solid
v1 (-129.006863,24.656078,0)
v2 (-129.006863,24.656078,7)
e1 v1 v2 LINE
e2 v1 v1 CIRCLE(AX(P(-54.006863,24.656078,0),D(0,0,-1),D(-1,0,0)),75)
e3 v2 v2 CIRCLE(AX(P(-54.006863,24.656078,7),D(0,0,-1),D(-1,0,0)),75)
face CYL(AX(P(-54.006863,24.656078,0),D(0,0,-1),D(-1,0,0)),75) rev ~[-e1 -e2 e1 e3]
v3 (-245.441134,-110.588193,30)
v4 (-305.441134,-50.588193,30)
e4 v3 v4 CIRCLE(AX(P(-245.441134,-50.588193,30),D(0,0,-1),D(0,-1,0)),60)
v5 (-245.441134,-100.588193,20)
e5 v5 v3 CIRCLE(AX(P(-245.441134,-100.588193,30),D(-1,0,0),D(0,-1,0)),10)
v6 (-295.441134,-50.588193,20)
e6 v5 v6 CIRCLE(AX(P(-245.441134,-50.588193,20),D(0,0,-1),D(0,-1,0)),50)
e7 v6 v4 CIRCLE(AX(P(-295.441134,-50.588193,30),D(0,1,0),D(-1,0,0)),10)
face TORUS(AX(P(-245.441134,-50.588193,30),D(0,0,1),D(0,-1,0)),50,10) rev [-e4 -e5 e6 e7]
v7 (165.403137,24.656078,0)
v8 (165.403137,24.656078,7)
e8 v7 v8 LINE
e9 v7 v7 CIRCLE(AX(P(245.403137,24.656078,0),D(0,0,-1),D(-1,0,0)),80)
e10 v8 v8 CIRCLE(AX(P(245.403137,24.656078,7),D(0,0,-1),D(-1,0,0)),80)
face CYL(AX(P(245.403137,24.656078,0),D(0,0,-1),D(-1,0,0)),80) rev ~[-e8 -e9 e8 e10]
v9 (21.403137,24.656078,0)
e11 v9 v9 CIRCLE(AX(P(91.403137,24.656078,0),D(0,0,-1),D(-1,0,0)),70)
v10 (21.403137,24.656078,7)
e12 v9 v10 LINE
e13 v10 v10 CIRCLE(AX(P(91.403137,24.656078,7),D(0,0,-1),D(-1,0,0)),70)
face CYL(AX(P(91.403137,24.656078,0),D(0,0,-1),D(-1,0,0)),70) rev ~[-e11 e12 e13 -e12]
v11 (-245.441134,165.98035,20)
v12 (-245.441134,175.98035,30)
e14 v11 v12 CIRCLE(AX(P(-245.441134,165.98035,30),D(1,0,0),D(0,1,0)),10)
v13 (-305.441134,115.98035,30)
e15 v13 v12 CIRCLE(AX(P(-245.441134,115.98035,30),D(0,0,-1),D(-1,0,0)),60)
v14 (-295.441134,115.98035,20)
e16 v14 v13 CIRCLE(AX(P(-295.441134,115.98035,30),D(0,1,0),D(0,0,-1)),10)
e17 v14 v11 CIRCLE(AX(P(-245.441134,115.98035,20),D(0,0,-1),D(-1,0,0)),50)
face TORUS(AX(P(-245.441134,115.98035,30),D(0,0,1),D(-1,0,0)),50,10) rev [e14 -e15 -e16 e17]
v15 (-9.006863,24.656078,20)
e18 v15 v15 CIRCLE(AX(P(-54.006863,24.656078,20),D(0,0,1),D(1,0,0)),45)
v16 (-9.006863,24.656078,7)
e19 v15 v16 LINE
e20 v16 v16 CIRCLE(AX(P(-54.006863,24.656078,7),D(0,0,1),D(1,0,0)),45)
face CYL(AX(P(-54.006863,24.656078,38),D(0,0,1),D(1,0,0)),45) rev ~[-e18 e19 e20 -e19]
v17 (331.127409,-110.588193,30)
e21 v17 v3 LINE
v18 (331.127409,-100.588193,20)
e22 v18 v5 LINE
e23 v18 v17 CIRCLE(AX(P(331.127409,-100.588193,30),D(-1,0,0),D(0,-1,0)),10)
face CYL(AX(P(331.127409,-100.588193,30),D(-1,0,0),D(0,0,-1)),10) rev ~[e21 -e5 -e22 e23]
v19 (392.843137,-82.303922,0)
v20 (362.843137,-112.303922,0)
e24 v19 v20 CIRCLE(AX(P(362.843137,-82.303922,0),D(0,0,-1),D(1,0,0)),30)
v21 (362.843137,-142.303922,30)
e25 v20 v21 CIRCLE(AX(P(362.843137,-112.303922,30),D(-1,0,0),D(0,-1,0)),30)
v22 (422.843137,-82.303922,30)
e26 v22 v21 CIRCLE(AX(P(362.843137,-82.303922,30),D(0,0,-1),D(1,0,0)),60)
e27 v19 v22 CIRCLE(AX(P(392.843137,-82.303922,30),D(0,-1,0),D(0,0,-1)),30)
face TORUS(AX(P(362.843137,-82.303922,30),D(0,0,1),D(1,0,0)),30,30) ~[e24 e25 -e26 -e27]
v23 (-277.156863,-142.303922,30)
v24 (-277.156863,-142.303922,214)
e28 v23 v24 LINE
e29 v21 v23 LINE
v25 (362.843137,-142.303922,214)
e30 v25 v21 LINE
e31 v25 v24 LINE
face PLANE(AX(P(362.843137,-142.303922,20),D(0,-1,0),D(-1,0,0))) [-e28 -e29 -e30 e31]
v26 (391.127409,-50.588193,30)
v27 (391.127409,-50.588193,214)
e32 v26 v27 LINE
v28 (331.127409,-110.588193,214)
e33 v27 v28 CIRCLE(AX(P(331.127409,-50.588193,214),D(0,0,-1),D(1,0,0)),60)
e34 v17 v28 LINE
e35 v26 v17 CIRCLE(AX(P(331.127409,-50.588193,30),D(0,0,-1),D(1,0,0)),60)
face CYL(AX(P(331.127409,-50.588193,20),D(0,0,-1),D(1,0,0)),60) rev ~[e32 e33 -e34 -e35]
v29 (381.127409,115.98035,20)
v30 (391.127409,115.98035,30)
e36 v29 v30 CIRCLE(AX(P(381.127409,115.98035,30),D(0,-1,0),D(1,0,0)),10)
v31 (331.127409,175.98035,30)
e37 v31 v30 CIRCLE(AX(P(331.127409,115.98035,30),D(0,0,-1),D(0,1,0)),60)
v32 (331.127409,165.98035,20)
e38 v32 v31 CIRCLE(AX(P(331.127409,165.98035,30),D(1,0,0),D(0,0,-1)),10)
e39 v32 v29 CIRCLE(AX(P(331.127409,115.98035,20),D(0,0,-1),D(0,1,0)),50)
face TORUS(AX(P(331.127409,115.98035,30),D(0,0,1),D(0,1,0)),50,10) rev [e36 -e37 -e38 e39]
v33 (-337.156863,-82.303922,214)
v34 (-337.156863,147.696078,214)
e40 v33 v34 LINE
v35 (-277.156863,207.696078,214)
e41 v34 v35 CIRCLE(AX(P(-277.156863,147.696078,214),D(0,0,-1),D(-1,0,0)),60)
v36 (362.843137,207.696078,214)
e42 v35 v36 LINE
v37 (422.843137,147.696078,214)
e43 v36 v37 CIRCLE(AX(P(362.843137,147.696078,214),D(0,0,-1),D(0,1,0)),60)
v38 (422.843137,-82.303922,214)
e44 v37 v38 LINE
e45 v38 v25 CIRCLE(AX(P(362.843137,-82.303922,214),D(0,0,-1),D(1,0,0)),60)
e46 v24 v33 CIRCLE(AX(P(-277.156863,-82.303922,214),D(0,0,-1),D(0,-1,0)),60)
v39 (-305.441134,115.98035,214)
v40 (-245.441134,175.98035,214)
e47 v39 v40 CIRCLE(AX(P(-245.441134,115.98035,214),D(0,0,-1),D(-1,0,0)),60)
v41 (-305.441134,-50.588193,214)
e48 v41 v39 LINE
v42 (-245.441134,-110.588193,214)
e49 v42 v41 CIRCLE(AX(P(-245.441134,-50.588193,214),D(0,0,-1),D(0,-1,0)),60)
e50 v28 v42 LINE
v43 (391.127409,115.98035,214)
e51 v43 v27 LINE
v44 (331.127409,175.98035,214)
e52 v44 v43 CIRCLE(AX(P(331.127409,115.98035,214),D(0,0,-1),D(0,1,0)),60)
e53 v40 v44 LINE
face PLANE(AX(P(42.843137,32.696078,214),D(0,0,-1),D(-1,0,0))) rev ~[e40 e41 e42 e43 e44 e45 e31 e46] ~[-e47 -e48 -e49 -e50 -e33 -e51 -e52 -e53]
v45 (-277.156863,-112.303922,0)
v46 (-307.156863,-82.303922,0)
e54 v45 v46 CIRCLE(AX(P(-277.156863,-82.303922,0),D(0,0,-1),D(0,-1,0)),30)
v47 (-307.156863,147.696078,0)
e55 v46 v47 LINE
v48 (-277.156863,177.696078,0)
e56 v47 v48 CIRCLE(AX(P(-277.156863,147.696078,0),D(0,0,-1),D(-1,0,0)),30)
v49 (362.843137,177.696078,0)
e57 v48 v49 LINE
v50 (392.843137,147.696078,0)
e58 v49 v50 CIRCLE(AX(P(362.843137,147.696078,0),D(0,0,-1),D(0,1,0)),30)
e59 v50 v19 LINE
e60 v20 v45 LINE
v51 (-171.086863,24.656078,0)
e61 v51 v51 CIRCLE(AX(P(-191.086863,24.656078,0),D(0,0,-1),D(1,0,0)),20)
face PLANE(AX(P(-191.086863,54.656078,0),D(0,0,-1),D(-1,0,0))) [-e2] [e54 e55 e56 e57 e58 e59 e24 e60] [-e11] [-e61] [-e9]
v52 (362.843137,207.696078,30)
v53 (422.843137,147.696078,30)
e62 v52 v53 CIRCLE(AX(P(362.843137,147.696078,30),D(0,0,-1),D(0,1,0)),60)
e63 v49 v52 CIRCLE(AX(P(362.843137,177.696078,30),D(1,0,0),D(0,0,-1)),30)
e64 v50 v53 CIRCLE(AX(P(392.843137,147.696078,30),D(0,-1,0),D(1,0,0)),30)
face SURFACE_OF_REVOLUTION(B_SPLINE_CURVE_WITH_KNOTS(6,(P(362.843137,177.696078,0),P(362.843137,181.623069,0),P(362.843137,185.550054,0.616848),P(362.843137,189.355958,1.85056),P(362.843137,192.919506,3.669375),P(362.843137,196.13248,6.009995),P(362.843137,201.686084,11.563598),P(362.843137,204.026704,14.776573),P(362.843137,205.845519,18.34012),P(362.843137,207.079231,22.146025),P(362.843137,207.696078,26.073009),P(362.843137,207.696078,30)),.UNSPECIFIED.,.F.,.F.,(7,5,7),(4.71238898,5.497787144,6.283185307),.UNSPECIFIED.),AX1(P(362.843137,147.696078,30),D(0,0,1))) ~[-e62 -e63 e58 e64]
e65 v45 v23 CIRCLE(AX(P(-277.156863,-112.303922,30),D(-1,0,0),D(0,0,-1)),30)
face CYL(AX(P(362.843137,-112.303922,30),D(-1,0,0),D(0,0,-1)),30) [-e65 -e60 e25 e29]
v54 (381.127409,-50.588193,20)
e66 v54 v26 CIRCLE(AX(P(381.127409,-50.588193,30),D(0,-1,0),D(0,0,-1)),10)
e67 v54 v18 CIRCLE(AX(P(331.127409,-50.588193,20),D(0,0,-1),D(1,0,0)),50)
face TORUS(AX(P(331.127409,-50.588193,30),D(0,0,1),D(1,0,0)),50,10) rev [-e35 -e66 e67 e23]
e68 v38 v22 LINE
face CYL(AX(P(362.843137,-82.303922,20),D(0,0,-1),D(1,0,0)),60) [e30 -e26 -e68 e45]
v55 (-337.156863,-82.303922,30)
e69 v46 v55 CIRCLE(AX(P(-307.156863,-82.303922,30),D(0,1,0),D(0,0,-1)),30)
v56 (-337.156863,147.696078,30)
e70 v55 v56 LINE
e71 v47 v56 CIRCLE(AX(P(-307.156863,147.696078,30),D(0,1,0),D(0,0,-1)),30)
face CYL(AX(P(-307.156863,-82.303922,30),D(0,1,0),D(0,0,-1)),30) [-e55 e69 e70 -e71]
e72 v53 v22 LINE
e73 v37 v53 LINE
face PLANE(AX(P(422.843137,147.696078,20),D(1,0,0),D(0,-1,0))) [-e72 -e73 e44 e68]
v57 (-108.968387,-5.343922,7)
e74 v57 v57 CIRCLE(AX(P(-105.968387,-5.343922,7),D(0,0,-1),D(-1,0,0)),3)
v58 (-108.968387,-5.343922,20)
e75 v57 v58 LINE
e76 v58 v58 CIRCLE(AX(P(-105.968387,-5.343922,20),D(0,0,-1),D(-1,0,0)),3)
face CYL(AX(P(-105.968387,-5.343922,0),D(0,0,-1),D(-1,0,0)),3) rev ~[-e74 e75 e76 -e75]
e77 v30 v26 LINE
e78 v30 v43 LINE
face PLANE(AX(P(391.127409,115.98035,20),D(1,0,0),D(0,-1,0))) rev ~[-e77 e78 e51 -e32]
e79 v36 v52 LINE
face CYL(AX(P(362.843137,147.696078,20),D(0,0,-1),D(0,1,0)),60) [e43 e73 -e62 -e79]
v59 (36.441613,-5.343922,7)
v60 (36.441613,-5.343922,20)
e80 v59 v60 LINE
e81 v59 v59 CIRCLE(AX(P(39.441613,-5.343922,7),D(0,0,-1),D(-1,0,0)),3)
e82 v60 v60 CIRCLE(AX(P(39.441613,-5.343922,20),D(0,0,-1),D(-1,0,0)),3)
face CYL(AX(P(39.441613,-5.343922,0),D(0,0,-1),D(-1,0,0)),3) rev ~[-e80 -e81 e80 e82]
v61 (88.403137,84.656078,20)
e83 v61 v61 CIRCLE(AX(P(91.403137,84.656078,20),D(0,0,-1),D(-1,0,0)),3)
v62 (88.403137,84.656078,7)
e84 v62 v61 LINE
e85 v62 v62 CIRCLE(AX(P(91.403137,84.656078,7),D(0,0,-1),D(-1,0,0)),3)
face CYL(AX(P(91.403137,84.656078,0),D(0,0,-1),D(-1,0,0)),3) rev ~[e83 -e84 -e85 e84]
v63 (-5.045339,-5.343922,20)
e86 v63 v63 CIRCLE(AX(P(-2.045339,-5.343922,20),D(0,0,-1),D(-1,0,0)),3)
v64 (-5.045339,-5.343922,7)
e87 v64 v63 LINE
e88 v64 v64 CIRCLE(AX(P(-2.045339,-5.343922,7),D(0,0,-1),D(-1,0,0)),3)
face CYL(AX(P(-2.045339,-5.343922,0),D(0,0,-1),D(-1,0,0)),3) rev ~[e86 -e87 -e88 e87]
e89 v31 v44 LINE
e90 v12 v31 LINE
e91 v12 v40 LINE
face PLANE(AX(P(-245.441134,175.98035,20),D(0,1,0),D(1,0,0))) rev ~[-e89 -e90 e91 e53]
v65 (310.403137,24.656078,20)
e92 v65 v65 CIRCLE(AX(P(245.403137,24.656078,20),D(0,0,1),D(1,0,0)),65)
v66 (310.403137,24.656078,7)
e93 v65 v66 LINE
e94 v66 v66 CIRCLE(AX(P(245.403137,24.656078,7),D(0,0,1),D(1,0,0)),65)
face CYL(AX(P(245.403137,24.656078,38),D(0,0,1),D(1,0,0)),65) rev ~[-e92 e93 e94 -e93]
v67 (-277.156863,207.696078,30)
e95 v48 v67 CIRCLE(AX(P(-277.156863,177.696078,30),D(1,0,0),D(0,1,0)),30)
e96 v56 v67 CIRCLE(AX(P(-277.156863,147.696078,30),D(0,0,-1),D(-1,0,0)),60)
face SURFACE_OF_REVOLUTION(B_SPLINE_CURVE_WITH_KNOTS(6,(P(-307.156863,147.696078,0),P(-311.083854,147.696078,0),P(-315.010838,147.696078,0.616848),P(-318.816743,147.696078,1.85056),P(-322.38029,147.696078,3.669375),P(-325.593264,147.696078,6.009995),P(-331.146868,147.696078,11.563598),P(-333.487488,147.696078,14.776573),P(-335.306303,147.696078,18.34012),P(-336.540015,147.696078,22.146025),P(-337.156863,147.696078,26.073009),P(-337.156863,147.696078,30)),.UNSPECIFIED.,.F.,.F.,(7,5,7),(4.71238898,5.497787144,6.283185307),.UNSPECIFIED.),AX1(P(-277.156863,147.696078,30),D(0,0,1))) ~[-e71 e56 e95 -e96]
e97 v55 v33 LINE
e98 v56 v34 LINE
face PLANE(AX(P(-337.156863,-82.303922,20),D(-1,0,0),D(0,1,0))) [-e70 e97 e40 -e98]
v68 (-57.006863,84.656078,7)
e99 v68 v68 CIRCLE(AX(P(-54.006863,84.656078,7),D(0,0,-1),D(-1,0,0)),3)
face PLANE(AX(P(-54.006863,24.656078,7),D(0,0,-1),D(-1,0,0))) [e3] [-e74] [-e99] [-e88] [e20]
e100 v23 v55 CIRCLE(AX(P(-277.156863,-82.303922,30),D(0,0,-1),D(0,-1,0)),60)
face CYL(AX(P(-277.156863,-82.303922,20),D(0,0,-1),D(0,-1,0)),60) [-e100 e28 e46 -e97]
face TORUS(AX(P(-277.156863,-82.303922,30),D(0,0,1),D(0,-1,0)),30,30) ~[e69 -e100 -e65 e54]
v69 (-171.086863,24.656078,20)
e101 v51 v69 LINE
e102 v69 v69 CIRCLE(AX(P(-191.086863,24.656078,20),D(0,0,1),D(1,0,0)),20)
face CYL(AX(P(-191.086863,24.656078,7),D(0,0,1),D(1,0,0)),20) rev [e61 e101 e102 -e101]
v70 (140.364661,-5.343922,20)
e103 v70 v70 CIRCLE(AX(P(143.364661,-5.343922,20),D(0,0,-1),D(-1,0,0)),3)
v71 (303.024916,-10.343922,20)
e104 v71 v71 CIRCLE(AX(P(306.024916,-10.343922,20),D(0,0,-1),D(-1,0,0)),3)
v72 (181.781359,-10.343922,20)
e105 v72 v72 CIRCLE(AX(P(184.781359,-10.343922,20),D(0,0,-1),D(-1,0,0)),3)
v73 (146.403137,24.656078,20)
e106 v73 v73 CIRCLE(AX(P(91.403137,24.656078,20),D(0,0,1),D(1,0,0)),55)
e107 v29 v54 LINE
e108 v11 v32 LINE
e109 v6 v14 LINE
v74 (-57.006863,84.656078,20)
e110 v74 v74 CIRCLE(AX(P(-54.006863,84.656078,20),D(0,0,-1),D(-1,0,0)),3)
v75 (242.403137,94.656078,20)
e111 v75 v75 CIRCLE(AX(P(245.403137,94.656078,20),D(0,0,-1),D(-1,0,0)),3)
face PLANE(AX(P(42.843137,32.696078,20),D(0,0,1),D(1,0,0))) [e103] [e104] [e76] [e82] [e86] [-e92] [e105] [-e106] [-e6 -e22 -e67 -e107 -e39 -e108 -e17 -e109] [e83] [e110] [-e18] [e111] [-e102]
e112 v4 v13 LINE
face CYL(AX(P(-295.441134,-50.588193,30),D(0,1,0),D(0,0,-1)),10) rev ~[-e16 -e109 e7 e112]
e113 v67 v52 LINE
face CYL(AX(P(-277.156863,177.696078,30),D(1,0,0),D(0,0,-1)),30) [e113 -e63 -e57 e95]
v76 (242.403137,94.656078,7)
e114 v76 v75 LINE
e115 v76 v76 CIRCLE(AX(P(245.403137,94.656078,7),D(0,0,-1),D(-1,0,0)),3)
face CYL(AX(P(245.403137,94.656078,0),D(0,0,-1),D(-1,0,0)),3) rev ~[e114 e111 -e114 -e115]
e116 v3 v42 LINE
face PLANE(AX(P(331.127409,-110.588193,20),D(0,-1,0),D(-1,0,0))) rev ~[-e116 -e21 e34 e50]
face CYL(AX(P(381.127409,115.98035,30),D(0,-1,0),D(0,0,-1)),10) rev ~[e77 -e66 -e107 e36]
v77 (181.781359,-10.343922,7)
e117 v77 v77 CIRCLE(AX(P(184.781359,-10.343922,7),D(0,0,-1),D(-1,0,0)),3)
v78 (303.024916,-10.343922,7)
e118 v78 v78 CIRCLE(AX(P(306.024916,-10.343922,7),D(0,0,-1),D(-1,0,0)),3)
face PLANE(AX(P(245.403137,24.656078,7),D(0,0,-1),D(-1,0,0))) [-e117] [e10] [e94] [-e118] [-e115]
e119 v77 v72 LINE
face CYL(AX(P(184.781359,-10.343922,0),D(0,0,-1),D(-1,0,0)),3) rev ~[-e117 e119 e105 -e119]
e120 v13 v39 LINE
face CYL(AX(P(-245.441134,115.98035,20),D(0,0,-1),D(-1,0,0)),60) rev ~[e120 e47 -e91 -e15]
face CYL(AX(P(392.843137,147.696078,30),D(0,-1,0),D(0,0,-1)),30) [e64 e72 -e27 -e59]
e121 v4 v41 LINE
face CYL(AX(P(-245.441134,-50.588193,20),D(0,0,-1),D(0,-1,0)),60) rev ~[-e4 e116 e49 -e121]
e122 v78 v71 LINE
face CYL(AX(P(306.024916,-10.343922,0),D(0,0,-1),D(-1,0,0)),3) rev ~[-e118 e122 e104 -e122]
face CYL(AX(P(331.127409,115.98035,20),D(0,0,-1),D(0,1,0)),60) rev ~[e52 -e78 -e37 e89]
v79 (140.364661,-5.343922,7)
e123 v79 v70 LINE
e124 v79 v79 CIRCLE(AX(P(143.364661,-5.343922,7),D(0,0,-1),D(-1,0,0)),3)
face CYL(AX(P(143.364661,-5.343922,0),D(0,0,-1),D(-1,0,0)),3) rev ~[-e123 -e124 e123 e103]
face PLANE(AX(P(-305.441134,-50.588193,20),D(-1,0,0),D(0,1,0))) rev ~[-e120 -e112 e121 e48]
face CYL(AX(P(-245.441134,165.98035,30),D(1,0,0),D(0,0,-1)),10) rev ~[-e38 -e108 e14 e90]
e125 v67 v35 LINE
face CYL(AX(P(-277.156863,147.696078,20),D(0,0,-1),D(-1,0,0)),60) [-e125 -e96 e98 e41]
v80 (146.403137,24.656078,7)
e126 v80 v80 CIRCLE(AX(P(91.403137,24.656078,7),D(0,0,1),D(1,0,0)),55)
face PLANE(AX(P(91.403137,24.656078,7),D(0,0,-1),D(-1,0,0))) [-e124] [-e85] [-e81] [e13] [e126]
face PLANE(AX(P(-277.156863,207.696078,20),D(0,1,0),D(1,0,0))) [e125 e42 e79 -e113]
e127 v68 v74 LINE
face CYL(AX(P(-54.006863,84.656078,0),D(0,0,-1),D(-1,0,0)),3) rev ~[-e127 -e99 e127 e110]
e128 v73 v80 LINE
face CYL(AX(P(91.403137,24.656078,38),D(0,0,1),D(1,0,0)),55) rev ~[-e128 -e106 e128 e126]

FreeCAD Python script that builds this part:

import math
import FreeCAD as App
import Part
import Sketcher
from FreeCAD import Vector
Q = App.Units.Quantity


def edges_at(feature, points):
    """Names of the edges that pass closest to the given points."""
    edges = feature.Shape.Edges
    near = lambda p: min(range(len(edges)), key=lambda i: edges[i].distToShape(Part.Vertex(*p))[0])
    return sorted({f"Edge{near(p) + 1}" for p in points})


def add_polygon(sketch, points):
    """Adds a closed chain of lines whose ends are joined by coincident constraints."""
    first, n = sketch.GeometryCount, len(points)
    for a, b in zip(points, points[1:] + points[:1]):
        sketch.addGeometry(Part.LineSegment(App.Vector(*a, 0), App.Vector(*b, 0)), False)
    for i in range(n):
        sketch.addConstraint(Sketcher.Constraint("Coincident", first + i, 2, first + (i + 1) % n, 1))

doc = App.newDocument("Part")
body = doc.addObject("PartDesign::Body", "Body")

# Sketch on XY plane
sketch1 = doc.addObject("Sketcher::SketchObject", "Sketch")
body.addObject(sketch1)
sketch1.AttachmentSupport = (doc.XY_Plane, [""])
sketch1.MapMode = "FlatFace"
add_polygon(sketch1, [(-337, 208), (-337, -142), (423, -142), (423, 208)])  # lines 0-3
sketch1.addConstraint([
    Sketcher.Constraint("Vertical", 0),
    Sketcher.Constraint("Horizontal", 1),
    Sketcher.Constraint("Vertical", 2),
    Sketcher.Constraint("Horizontal", 3),
    Sketcher.Constraint("DistanceX", 1, 1, 1, 2, Q("760 mm")),
    Sketcher.Constraint("DistanceY", 0, 2, 0, 1, Q("350 mm")),
    Sketcher.Constraint("DistanceY", 0, 2, -1, 1, Q("142.303922 mm")),
    Sketcher.Constraint("DistanceX", 0, 2, -1, 1, Q("337.156863 mm")),
])
pad1 = doc.addObject("PartDesign::Pad", "Pad")
body.addObject(pad1)
pad1.Profile = sketch1
pad1.Length = 38

# Sketch on XY plane
sketch2 = doc.addObject("Sketcher::SketchObject", "Sketch001")
body.addObject(sketch2)
sketch2.AttachmentSupport = (doc.XY_Plane, [""])
sketch2.MapMode = "FlatFace"
sketch2.AttachmentOffset = App.Placement(Vector(0, 0, 38), App.Rotation())
sketch2.addGeometry([
    Part.Circle(Vector(245, 25, 0), Vector(0, 0, 1), 65),
    Part.Circle(Vector(91, 25, 0), Vector(0, 0, 1), 55),
    Part.Circle(Vector(-54, 25, 0), Vector(0, 0, 1), 45),
], False)
sketch2.addConstraint([
    Sketcher.Constraint("Horizontal", 0, 3, 1, 3),
    Sketcher.Constraint("Horizontal", 1, 3, 2, 3),
    Sketcher.Constraint("Diameter", 0, Q("130 mm")),
    Sketcher.Constraint("Diameter", 1, Q("110 mm")),
    Sketcher.Constraint("Diameter", 2, Q("90 mm")),
    Sketcher.Constraint("DistanceX", 1, 3, 0, 3, Q("154 mm")),
    Sketcher.Constraint("DistanceX", 2, 3, 1, 3, Q("145.41 mm")),
    Sketcher.Constraint("DistanceY", -1, 1, 0, 3, Q("24.656078 mm")),
    Sketcher.Constraint("DistanceX", -1, 1, 0, 3, Q("245.403137 mm")),
])
pocket1 = doc.addObject("PartDesign::Pocket", "Pocket")
body.addObject(pocket1)
pocket1.Profile = sketch2
pocket1.Type = "ThroughAll"

# Sketch on XY plane
sketch3 = doc.addObject("Sketcher::SketchObject", "Sketch002")
body.addObject(sketch3)
sketch3.AttachmentSupport = (doc.XY_Plane, [""])
sketch3.MapMode = "FlatFace"
sketch3.AttachmentOffset = App.Placement(Vector(0, 0, 38), App.Rotation())
sketch3.addGeometry(Part.Circle(Vector(-191, 25, 0), Vector(0, 0, 1), 20), False)
sketch3.addConstraint([
    Sketcher.Constraint("Diameter", 0, Q("40 mm")),
    Sketcher.Constraint("DistanceY", -1, 1, 0, 3, Q("24.656078 mm")),
    Sketcher.Constraint("DistanceX", 0, 3, -1, 1, Q("191.086863 mm")),
])
pocket2 = doc.addObject("PartDesign::Pocket", "Pocket001")
body.addObject(pocket2)
pocket2.Profile = sketch3
pocket2.Type = "ThroughAll"

# Sketch on XY plane
sketch4 = doc.addObject("Sketcher::SketchObject", "Sketch003")
body.addObject(sketch4)
sketch4.AttachmentSupport = (doc.XY_Plane, [""])
sketch4.MapMode = "FlatFace"
sketch4.addGeometry([
    Part.Circle(Vector(-54, 24.7, 0), Vector(0, 0, 1), 75),  # 0
    Part.Circle(Vector(-2, -5.3, 0), Vector(0, 0, 1), 3),  # 1
    Part.Circle(Vector(-106, -5.3, 0), Vector(0, 0, 1), 3),  # 2
    Part.Circle(Vector(-54, 84.7, 0), Vector(0, 0, 1), 3),  # 3
    Part.Circle(Vector(91.4, 24.7, 0), Vector(0, 0, 1), 70),  # 4
    Part.Circle(Vector(143.4, -5.3, 0), Vector(0, 0, 1), 3),  # 5
    Part.Circle(Vector(39.4, -5.3, 0), Vector(0, 0, 1), 3),  # 6
    Part.Circle(Vector(91.4, 84.7, 0), Vector(0, 0, 1), 3),  # 7
    Part.Circle(Vector(-191.1, 24.7, 0), Vector(0, 0, 1), 40),  # 8
    Part.Circle(Vector(-165.1, 9.7, 0), Vector(0, 0, 1), 3),  # 9
    Part.Circle(Vector(-217.1, 9.7, 0), Vector(0, 0, 1), 3),  # 10
    Part.Circle(Vector(-191.1, 54.7, 0), Vector(0, 0, 1), 3),  # 11
], False)
sketch4.addConstraint([
    Sketcher.Constraint("Equal", 1, 2),
    Sketcher.Constraint("Equal", 2, 3),
    Sketcher.Constraint("Equal", 3, 5),
    Sketcher.Constraint("Equal", 5, 6),
    Sketcher.Constraint("Equal", 6, 7),
    Sketcher.Constraint("Equal", 7, 9),
    Sketcher.Constraint("Equal", 9, 10),
    Sketcher.Constraint("Equal", 10, 11),
    Sketcher.Constraint("Horizontal", 1, 3, 2, 3),
    Sketcher.Constraint("Horizontal", 0, 3, 4, 3),
    Sketcher.Constraint("Horizontal", 2, 3, 5, 3),
    Sketcher.Constraint("Horizontal", 5, 3, 6, 3),
    Sketcher.Constraint("Horizontal", 3, 3, 7, 3),
    Sketcher.Constraint("Horizontal", 4, 3, 8, 3),
    Sketcher.Constraint("Horizontal", 9, 3, 10, 3),
    Sketcher.Constraint("Vertical", 0, 3, 3, 3),
    Sketcher.Constraint("Vertical", 4, 3, 7, 3),
    Sketcher.Constraint("Vertical", 8, 3, 11, 3),
    Sketcher.Constraint("Diameter", 0, Q("150 mm")),
    Sketcher.Constraint("Diameter", 1, Q("6 mm")),
    Sketcher.Constraint("Diameter", 4, Q("140 mm")),
    Sketcher.Constraint("Diameter", 8, Q("80 mm")),
    Sketcher.Constraint("DistanceY", 1, 3, 0, 3, Q("30 mm")),
    Sketcher.Constraint("DistanceY", 0, 3, 3, 3, Q("60 mm")),
    Sketcher.Constraint("DistanceY", 9, 3, 8, 3, Q("15 mm")),
    Sketcher.Constraint("DistanceY", 8, 3, 11, 3, Q("30 mm")),
    Sketcher.Constraint("DistanceX", 0, 3, 4, 3, Q("145.41 mm")),
    Sketcher.Constraint("DistanceX", 1, 3, 5, 3, Q("145.41 mm")),
    Sketcher.Constraint("DistanceX", 8, 3, 0, 3, Q("137.08 mm")),
    Sketcher.Constraint("DistanceX", 9, 3, -1, 1, Q("165.106101 mm")),
    Sketcher.Constraint("DistanceY", -1, 1, 0, 3, Q("24.656078 mm")),
    Sketcher.Constraint("DistanceX", 1, 3, -1, 1, Q("2.045339 mm")),
    Sketcher.Constraint("DistanceX", 2, 3, 1, 3, Q("103.923048 mm")),
    Sketcher.Constraint("DistanceX", 1, 3, 6, 3, Q("41.486952 mm")),
    Sketcher.Constraint("DistanceX", 0, 3, -1, 1, Q("54.006863 mm")),
    Sketcher.Constraint("DistanceX", 10, 3, -1, 1, Q("217.067625 mm")),
])
pocket3 = doc.addObject("PartDesign::Pocket", "Pocket002")
body.addObject(pocket3)
pocket3.Profile = sketch4
pocket3.Length = 7
pocket3.Reversed = True

# Sketch on XY plane
sketch5 = doc.addObject("Sketcher::SketchObject", "Sketch004")
body.addObject(sketch5)
sketch5.AttachmentSupport = (doc.XY_Plane, [""])
sketch5.MapMode = "FlatFace"
sketch5.addGeometry([
    Part.Circle(Vector(91.4, 84.7, 0), Vector(0, 0, 1), 3),  # 0
    Part.Circle(Vector(143.4, -5.3, 0), Vector(0, 0, 1), 3),  # 1
    Part.Circle(Vector(39.4, -5.3, 0), Vector(0, 0, 1), 3),  # 2
    Part.Circle(Vector(-2, -5.3, 0), Vector(0, 0, 1), 3),  # 3
    Part.Circle(Vector(-54, 84.7, 0), Vector(0, 0, 1), 3),  # 4
    Part.Circle(Vector(-106, -5.3, 0), Vector(0, 0, 1), 3),  # 5
    Part.Circle(Vector(-191.1, 54.7, 0), Vector(0, 0, 1), 3),  # 6
    Part.Circle(Vector(-165.1, 9.7, 0), Vector(0, 0, 1), 3),  # 7
    Part.Circle(Vector(-217.1, 9.7, 0), Vector(0, 0, 1), 3),  # 8
], False)
sketch5.addConstraint([
    Sketcher.Constraint("Equal", 0, 1),
    Sketcher.Constraint("Equal", 1, 2),
    Sketcher.Constraint("Equal", 2, 3),
    Sketcher.Constraint("Equal", 3, 4),
    Sketcher.Constraint("Equal", 4, 5),
    Sketcher.Constraint("Equal", 5, 6),
    Sketcher.Constraint("Equal", 6, 7),
    Sketcher.Constraint("Equal", 7, 8),
    Sketcher.Constraint("Horizontal", 1, 3, 2, 3),
    Sketcher.Constraint("Horizontal", 2, 3, 3, 3),
    Sketcher.Constraint("Horizontal", 0, 3, 4, 3),
    Sketcher.Constraint("Horizontal", 3, 3, 5, 3),
    Sketcher.Constraint("Horizontal", 7, 3, 8, 3),
    Sketcher.Constraint("Diameter", 0, Q("6 mm")),
    Sketcher.Constraint("DistanceY", 1, 3, 0, 3, Q("90 mm")),
    Sketcher.Constraint("DistanceY", 5, 3, 6, 3, Q("60 mm")),
    Sketcher.Constraint("DistanceY", 7, 3, 6, 3, Q("45 mm")),
    Sketcher.Constraint("DistanceX", 3, 3, 1, 3, Q("145.41 mm")),
    Sketcher.Constraint("DistanceX", 4, 3, 0, 3, Q("145.41 mm")),
    Sketcher.Constraint("DistanceX", 5, 3, 2, 3, Q("145.41 mm")),
    Sketcher.Constraint("DistanceX", 6, 3, 4, 3, Q("137.08 mm")),
    Sketcher.Constraint("DistanceX", 7, 3, -1, 1, Q("165.106101 mm")),
    Sketcher.Constraint("DistanceY", -1, 1, 0, 3, Q("84.656078 mm")),
    Sketcher.Constraint("DistanceX", -1, 1, 1, 3, Q("143.364661 mm")),
    Sketcher.Constraint("DistanceX", 2, 3, 1, 3, Q("103.923048 mm")),
    Sketcher.Constraint("DistanceX", -1, 1, 0, 3, Q("91.403137 mm")),
    Sketcher.Constraint("DistanceX", 8, 3, -1, 1, Q("217.067625 mm")),
])
pocket4 = doc.addObject("PartDesign::Pocket", "Pocket003")
body.addObject(pocket4)
pocket4.Profile = sketch5
pocket4.Type = "ThroughAll"
pocket4.Reversed = True

# Sketch on XY plane
sketch6 = doc.addObject("Sketcher::SketchObject", "Sketch005")
body.addObject(sketch6)
sketch6.AttachmentSupport = (doc.XY_Plane, [""])
sketch6.MapMode = "FlatFace"
sketch6.AttachmentOffset = App.Placement(Vector(0, 0, 38), App.Rotation())
add_polygon(sketch6, [(-337, 208), (-337, -142), (423, -142), (423, 208)])  # lines 0-3
sketch6.addConstraint([
    Sketcher.Constraint("Vertical", 0),
    Sketcher.Constraint("Horizontal", 1),
    Sketcher.Constraint("Vertical", 2),
    Sketcher.Constraint("Horizontal", 3),
    Sketcher.Constraint("DistanceX", 1, 1, 1, 2, Q("760 mm")),
    Sketcher.Constraint("DistanceY", 0, 2, 0, 1, Q("350 mm")),
    Sketcher.Constraint("DistanceY", 0, 2, -1, 1, Q("142.303922 mm")),
    Sketcher.Constraint("DistanceX", 0, 2, -1, 1, Q("337.156863 mm")),
])
pocket5 = doc.addObject("PartDesign::Pocket", "Pocket004")
body.addObject(pocket5)
pocket5.Profile = sketch6
pocket5.Length = 18

# Sketch on XY plane
sketch7 = doc.addObject("Sketcher::SketchObject", "Sketch006")
body.addObject(sketch7)
sketch7.AttachmentSupport = (doc.XY_Plane, [""])
sketch7.MapMode = "FlatFace"
sketch7.AttachmentOffset = App.Placement(Vector(0, 0, 20), App.Rotation())
add_polygon(sketch7, [(-422, 292), (-422, -227), (508, -227), (508, 292)])  # lines 0-3
sketch7.addGeometry(Part.ArcOfCircle(Part.Circle(Vector(-277, 148, 0), Vector(0, 0, 1), 60), math.radians(90), math.radians(180)), False)  # 4
sketch7.addGeometry(Part.LineSegment(Vector(-277, 208, 0), Vector(363, 208, 0)), False)  # 5
sketch7.addGeometry(Part.ArcOfCircle(Part.Circle(Vector(363, 148, 0), Vector(0, 0, 1), 60), math.radians(0), math.radians(90)), False)  # 6
sketch7.addGeometry(Part.LineSegment(Vector(423, 148, 0), Vector(423, -82, 0)), False)  # 7
sketch7.addGeometry(Part.ArcOfCircle(Part.Circle(Vector(363, -82, 0), Vector(0, 0, 1), 60), math.radians(-90), math.radians(0)), False)  # 8
sketch7.addGeometry(Part.LineSegment(Vector(363, -142, 0), Vector(-277, -142, 0)), False)  # 9
sketch7.addGeometry(Part.ArcOfCircle(Part.Circle(Vector(-277, -82, 0), Vector(0, 0, 1), 60), math.radians(-180), math.radians(-90)), False)  # 10
sketch7.addGeometry(Part.LineSegment(Vector(-337, -82, 0), Vector(-337, 148, 0)), False)  # 11
sketch7.addConstraint([
    Sketcher.Constraint("Tangent", 4, 1, 5, 1),
    Sketcher.Constraint("Tangent", 5, 2, 6, 2),
    Sketcher.Constraint("Tangent", 6, 1, 7, 1),
    Sketcher.Constraint("Tangent", 7, 2, 8, 2),
    Sketcher.Constraint("Tangent", 8, 1, 9, 1),
    Sketcher.Constraint("Tangent", 9, 2, 10, 2),
    Sketcher.Constraint("Tangent", 10, 1, 11, 1),
    Sketcher.Constraint("Tangent", 11, 2, 4, 2),
    Sketcher.Constraint("Vertical", 0),
    Sketcher.Constraint("Horizontal", 1),
    Sketcher.Constraint("Vertical", 2),
    Sketcher.Constraint("Horizontal", 3),
    Sketcher.Constraint("Horizontal", 5),
    Sketcher.Constraint("Vertical", 7),
    Sketcher.Constraint("Horizontal", 9),
    Sketcher.Constraint("Vertical", 11),
    Sketcher.Constraint("Equal", 4, 6),
    Sketcher.Constraint("Equal", 6, 8),
    Sketcher.Constraint("Equal", 8, 10),
    Sketcher.Constraint("Radius", 4, Q("60 mm")),
    Sketcher.Constraint("DistanceX", 5, 1, 5, 2, Q("640 mm")),
    Sketcher.Constraint("DistanceY", 7, 2, 7, 1, Q("230 mm")),
    Sketcher.Constraint("DistanceY", 0, 2, -1, 1, Q("227 mm")),
    Sketcher.Constraint("DistanceX", 1, 1, 1, 2, Q("929.392 mm")),
    Sketcher.Constraint("DistanceY", 0, 2, 0, 1, Q("519.392 mm")),
    Sketcher.Constraint("DistanceX", 0, 2, -1, 1, Q("421.853 mm")),
    Sketcher.Constraint("DistanceY", -1, 1, 4, 3, Q("147.696078 mm")),
    Sketcher.Constraint("DistanceX", 4, 3, -1, 1, Q("277.156863 mm")),
])
pocket6 = doc.addObject("PartDesign::Pocket", "Pocket005")
body.addObject(pocket6)
pocket6.Profile = sketch7
pocket6.Type = "ThroughAll"

# Sketch on XY plane
sketch8 = doc.addObject("Sketcher::SketchObject", "Sketch007")
body.addObject(sketch8)
sketch8.AttachmentSupport = (doc.XY_Plane, [""])
sketch8.MapMode = "FlatFace"
sketch8.AttachmentOffset = App.Placement(Vector(0, 0, 20), App.Rotation())
sketch8.addGeometry([
    Part.LineSegment(Vector(363, 208, 0), Vector(-277, 208, 0)),  # 0
    Part.ArcOfCircle(Part.Circle(Vector(-277, 148, 0), Vector(0, 0, 1), 60), math.radians(90), math.radians(180)),  # 1
    Part.LineSegment(Vector(-337, 148, 0), Vector(-337, -82, 0)),  # 2
    Part.ArcOfCircle(Part.Circle(Vector(-277, -82, 0), Vector(0, 0, 1), 60), math.radians(-180), math.radians(-90)),  # 3
    Part.LineSegment(Vector(-277, -142, 0), Vector(363, -142, 0)),  # 4
    Part.ArcOfCircle(Part.Circle(Vector(363, -82, 0), Vector(0, 0, 1), 60), math.radians(-90), math.radians(0)),  # 5
    Part.LineSegment(Vector(423, -82, 0), Vector(423, 148, 0)),  # 6
    Part.ArcOfCircle(Part.Circle(Vector(363, 148, 0), Vector(0, 0, 1), 60), math.radians(0), math.radians(90)),  # 7
    Part.LineSegment(Vector(-245, 176, 0), Vector(331, 176, 0)),  # 8
    Part.ArcOfCircle(Part.Circle(Vector(331, 116, 0), Vector(0, 0, 1), 60), math.radians(0), math.radians(90)),  # 9
    Part.LineSegment(Vector(391, 116, 0), Vector(391, -51, 0)),  # 10
    Part.ArcOfCircle(Part.Circle(Vector(331, -51, 0), Vector(0, 0, 1), 60), math.radians(-90), math.radians(0)),  # 11
    Part.LineSegment(Vector(331, -111, 0), Vector(-245, -111, 0)),  # 12
    Part.ArcOfCircle(Part.Circle(Vector(-245, -51, 0), Vector(0, 0, 1), 60), math.radians(-180), math.radians(-90)),  # 13
    Part.LineSegment(Vector(-305, -51, 0), Vector(-305, 116, 0)),  # 14
    Part.ArcOfCircle(Part.Circle(Vector(-245, 116, 0), Vector(0, 0, 1), 60), math.radians(90), math.radians(180)),  # 15
], False)
sketch8.addConstraint([
    Sketcher.Constraint("Tangent", 0, 2, 1, 1),
    Sketcher.Constraint("Tangent", 1, 2, 2, 1),
    Sketcher.Constraint("Tangent", 2, 2, 3, 1),
    Sketcher.Constraint("Tangent", 3, 2, 4, 1),
    Sketcher.Constraint("Tangent", 4, 2, 5, 1),
    Sketcher.Constraint("Tangent", 5, 2, 6, 1),
    Sketcher.Constraint("Tangent", 6, 2, 7, 1),
    Sketcher.Constraint("Tangent", 7, 2, 0, 1),
    Sketcher.Constraint("Tangent", 8, 2, 9, 2),
    Sketcher.Constraint("Tangent", 9, 1, 10, 1),
    Sketcher.Constraint("Tangent", 10, 2, 11, 2),
    Sketcher.Constraint("Tangent", 11, 1, 12, 1),
    Sketcher.Constraint("Tangent", 12, 2, 13, 2),
    Sketcher.Constraint("Tangent", 13, 1, 14, 1),
    Sketcher.Constraint("Tangent", 14, 2, 15, 2),
    Sketcher.Constraint("Tangent", 15, 1, 8, 1),
    Sketcher.Constraint("Horizontal", 0),
    Sketcher.Constraint("Vertical", 2),
    Sketcher.Constraint("Horizontal", 4),
    Sketcher.Constraint("Vertical", 6),
    Sketcher.Constraint("Horizontal", 8),
    Sketcher.Constraint("Vertical", 10),
    Sketcher.Constraint("Horizontal", 12),
    Sketcher.Constraint("Vertical", 14),
    Sketcher.Constraint("Equal", 1, 3),
    Sketcher.Constraint("Equal", 3, 5),
    Sketcher.Constraint("Equal", 5, 7),
    Sketcher.Constraint("Equal", 7, 9),
    Sketcher.Constraint("Equal", 9, 11),
    Sketcher.Constraint("Equal", 11, 13),
    Sketcher.Constraint("Equal", 13, 15),
    Sketcher.Constraint("Radius", 1, Q("60 mm")),
    Sketcher.Constraint("DistanceX", 0, 2, 0, 1, Q("640 mm")),
    Sketcher.Constraint("DistanceY", 2, 2, 2, 1, Q("230 mm")),
    Sketcher.Constraint("DistanceX", 8, 1, 8, 2, Q("576.568542 mm")),
    Sketcher.Constraint("DistanceY", 10, 2, 10, 1, Q("166.568542 mm")),
    Sketcher.Constraint("DistanceY", -1, 1, 1, 3, Q("147.696078 mm")),
    Sketcher.Constraint("DistanceX", -1, 1, 9, 3, Q("331.127409 mm")),
    Sketcher.Constraint("DistanceY", -1, 1, 9, 3, Q("115.98035 mm")),
    Sketcher.Constraint("DistanceX", 9, 3, 7, 3, Q("31.715729 mm")),
])
pad2 = doc.addObject("PartDesign::Pad", "Pad001")
body.addObject(pad2)
pad2.Profile = sketch8
pad2.Length = 194
doc.recompute()

fillet = doc.addObject("PartDesign::Fillet", "Fillet")
body.addObject(fillet)
fillet.Base = (pad2, edges_at(pad2, [
    (-287.868, -93.015, 20),
    (42.843, -110.588, 20),
    (373.554, -93.015, 20),
    (391.127, 32.696, 20),
    (373.554, 158.407, 20),
    (42.843, 175.98, 20),
    (-287.868, 158.407, 20),
    (-305.441, 32.696, 20),
]))
fillet.Radius = 10

# Sketch on XY plane
sketch9 = doc.addObject("Sketcher::SketchObject", "Sketch008")
body.addObject(sketch9)
sketch9.AttachmentSupport = (doc.XY_Plane, [""])
sketch9.MapMode = "FlatFace"
sketch9.AttachmentOffset = App.Placement(Vector(0, 0, 7), App.Rotation())
sketch9.addGeometry([
    Part.Circle(Vector(-191.1, 24.7, 0), Vector(0, 0, 1), 40),  # 0
    Part.Circle(Vector(-165.1, 9.7, 0), Vector(0, 0, 1), 3),  # 1
    Part.Circle(Vector(-191.1, 24.7, 0), Vector(0, 0, 1), 20),  # 2
    Part.Circle(Vector(-217.1, 9.7, 0), Vector(0, 0, 1), 3),  # 3
    Part.Circle(Vector(-191.1, 54.7, 0), Vector(0, 0, 1), 3),  # 4
], False)
sketch9.addConstraint([
    Sketcher.Constraint("Coincident", 2, 3, 0, 3),
    Sketcher.Constraint("Equal", 1, 3),
    Sketcher.Constraint("Equal", 3, 4),
    Sketcher.Constraint("Horizontal", 1, 3, 3, 3),
    Sketcher.Constraint("Vertical", 2, 3, 4, 3),
    Sketcher.Constraint("Diameter", 0, Q("80 mm")),
    Sketcher.Constraint("Diameter", 1, Q("6 mm")),
    Sketcher.Constraint("Diameter", 2, Q("40 mm")),
    Sketcher.Constraint("DistanceY", 1, 3, 0, 3, Q("15 mm")),
    Sketcher.Constraint("DistanceY", 0, 3, 4, 3, Q("30 mm")),
    Sketcher.Constraint("DistanceX", 1, 3, -1, 1, Q("165.106101 mm")),
    Sketcher.Constraint("DistanceY", -1, 1, 0, 3, Q("24.656078 mm")),
    Sketcher.Constraint("DistanceX", 0, 3, -1, 1, Q("191.086863 mm")),
    Sketcher.Constraint("DistanceX", 3, 3, -1, 1, Q("217.067625 mm")),
])
pad3 = doc.addObject("PartDesign::Pad", "Pad002")
body.addObject(pad3)
pad3.Profile = sketch9
pad3.Type = "TwoLengths"
pad3.Length = 7
pad3.Length2 = 2
pad3.Reversed = True

# Sketch on XY plane
sketch10 = doc.addObject("Sketcher::SketchObject", "Sketch009")
body.addObject(sketch10)
sketch10.AttachmentSupport = (doc.XY_Plane, [""])
sketch10.MapMode = "FlatFace"
sketch10.addGeometry([
    Part.Circle(Vector(-191.1, 54.7, 0), Vector(0, 0, 1), 3),
    Part.Circle(Vector(-217.1, 9.7, 0), Vector(0, 0, 1), 3),
    Part.Circle(Vector(-165.1, 9.7, 0), Vector(0, 0, 1), 3),
], False)
sketch10.addConstraint([
    Sketcher.Constraint("Equal", 0, 1),
    Sketcher.Constraint("Equal", 1, 2),
    Sketcher.Constraint("Horizontal", 1, 3, 2, 3),
    Sketcher.Constraint("Diameter", 0, Q("6 mm")),
    Sketcher.Constraint("DistanceY", 1, 3, 0, 3, Q("45 mm")),
    Sketcher.Constraint("DistanceX", 2, 3, -1, 1, Q("165.106101 mm")),
    Sketcher.Constraint("DistanceY", -1, 1, 0, 3, Q("54.656078 mm")),
    Sketcher.Constraint("DistanceX", 0, 3, -1, 1, Q("191.086863 mm")),
    Sketcher.Constraint("DistanceX", 1, 3, -1, 1, Q("217.067625 mm")),
])
pad4 = doc.addObject("PartDesign::Pad", "Pad003")
body.addObject(pad4)
pad4.Profile = sketch10
pad4.Length = 20

# Sketch on XY plane
sketch11 = doc.addObject("Sketcher::SketchObject", "Sketch010")
body.addObject(sketch11)
sketch11.AttachmentSupport = (doc.XY_Plane, [""])
sketch11.MapMode = "FlatFace"
sketch11.addGeometry([
    Part.Circle(Vector(245.4, 24.7, 0), Vector(0, 0, 1), 80),
    Part.Circle(Vector(306, -10.3, 0), Vector(0, 0, 1), 3),
    Part.Circle(Vector(184.8, -10.3, 0), Vector(0, 0, 1), 3),
    Part.Circle(Vector(245.4, 94.7, 0), Vector(0, 0, 1), 3),
], False)
sketch11.addConstraint([
    Sketcher.Constraint("Equal", 1, 2),
    Sketcher.Constraint("Equal", 2, 3),
    Sketcher.Constraint("Horizontal", 1, 3, 2, 3),
    Sketcher.Constraint("Vertical", 0, 3, 3, 3),
    Sketcher.Constraint("Diameter", 0, Q("160 mm")),
    Sketcher.Constraint("Diameter", 1, Q("6 mm")),
    Sketcher.Constraint("DistanceY", 1, 3, 0, 3, Q("35 mm")),
    Sketcher.Constraint("DistanceY", 0, 3, 3, 3, Q("70 mm")),
    Sketcher.Constraint("DistanceY", -1, 1, 0, 3, Q("24.656078 mm")),
    Sketcher.Constraint("DistanceX", -1, 1, 2, 3, Q("184.781359 mm")),
    Sketcher.Constraint("DistanceX", 0, 3, 1, 3, Q("60.621778 mm")),
    Sketcher.Constraint("DistanceX", 2, 3, 0, 3, Q("60.621778 mm")),
])
pocket7 = doc.addObject("PartDesign::Pocket", "Pocket006")
body.addObject(pocket7)
pocket7.Profile = sketch11
pocket7.Length = 7
pocket7.Reversed = True

# Sketch on XY plane
sketch12 = doc.addObject("Sketcher::SketchObject", "Sketch011")
body.addObject(sketch12)
sketch12.AttachmentSupport = (doc.XY_Plane, [""])
sketch12.MapMode = "FlatFace"
sketch12.addGeometry([
    Part.Circle(Vector(245.4, 94.7, 0), Vector(0, 0, 1), 3),
    Part.Circle(Vector(306, -10.3, 0), Vector(0, 0, 1), 3),
    Part.Circle(Vector(184.8, -10.3, 0), Vector(0, 0, 1), 3),
], False)
sketch12.addConstraint([
    Sketcher.Constraint("Equal", 0, 1),
    Sketcher.Constraint("Equal", 1, 2),
    Sketcher.Constraint("Horizontal", 1, 3, 2, 3),
    Sketcher.Constraint("Diameter", 0, Q("6 mm")),
    Sketcher.Constraint("DistanceY", 1, 3, 0, 3, Q("105 mm")),
    Sketcher.Constraint("DistanceY", -1, 1, 0, 3, Q("94.656078 mm")),
    Sketcher.Constraint("DistanceX", -1, 1, 2, 3, Q("184.781359 mm")),
    Sketcher.Constraint("DistanceX", 0, 3, 1, 3, Q("60.621778 mm")),
    Sketcher.Constraint("DistanceX", 2, 3, 0, 3, Q("60.621778 mm")),
])
pocket8 = doc.addObject("PartDesign::Pocket", "Pocket007")
body.addObject(pocket8)
pocket8.Profile = sketch12
pocket8.Type = "ThroughAll"
pocket8.Reversed = True
doc.recompute()

fillet2 = doc.addObject("PartDesign::Fillet", "Fillet001")
body.addObject(fillet2)
fillet2.Base = (pocket8, edges_at(pocket8, [
    (-337.157, 32.696, 0),
    (42.843, 207.696, 0),
    (422.843, 32.696, 0),
    (42.843, -142.304, 0),
    (-319.583, -124.73, 0),
    (405.27, -124.73, 0),
    (405.27, 190.122, 0),
    (-319.583, 190.122, 0),
]))
fillet2.Radius = 30

doc.recompute()
